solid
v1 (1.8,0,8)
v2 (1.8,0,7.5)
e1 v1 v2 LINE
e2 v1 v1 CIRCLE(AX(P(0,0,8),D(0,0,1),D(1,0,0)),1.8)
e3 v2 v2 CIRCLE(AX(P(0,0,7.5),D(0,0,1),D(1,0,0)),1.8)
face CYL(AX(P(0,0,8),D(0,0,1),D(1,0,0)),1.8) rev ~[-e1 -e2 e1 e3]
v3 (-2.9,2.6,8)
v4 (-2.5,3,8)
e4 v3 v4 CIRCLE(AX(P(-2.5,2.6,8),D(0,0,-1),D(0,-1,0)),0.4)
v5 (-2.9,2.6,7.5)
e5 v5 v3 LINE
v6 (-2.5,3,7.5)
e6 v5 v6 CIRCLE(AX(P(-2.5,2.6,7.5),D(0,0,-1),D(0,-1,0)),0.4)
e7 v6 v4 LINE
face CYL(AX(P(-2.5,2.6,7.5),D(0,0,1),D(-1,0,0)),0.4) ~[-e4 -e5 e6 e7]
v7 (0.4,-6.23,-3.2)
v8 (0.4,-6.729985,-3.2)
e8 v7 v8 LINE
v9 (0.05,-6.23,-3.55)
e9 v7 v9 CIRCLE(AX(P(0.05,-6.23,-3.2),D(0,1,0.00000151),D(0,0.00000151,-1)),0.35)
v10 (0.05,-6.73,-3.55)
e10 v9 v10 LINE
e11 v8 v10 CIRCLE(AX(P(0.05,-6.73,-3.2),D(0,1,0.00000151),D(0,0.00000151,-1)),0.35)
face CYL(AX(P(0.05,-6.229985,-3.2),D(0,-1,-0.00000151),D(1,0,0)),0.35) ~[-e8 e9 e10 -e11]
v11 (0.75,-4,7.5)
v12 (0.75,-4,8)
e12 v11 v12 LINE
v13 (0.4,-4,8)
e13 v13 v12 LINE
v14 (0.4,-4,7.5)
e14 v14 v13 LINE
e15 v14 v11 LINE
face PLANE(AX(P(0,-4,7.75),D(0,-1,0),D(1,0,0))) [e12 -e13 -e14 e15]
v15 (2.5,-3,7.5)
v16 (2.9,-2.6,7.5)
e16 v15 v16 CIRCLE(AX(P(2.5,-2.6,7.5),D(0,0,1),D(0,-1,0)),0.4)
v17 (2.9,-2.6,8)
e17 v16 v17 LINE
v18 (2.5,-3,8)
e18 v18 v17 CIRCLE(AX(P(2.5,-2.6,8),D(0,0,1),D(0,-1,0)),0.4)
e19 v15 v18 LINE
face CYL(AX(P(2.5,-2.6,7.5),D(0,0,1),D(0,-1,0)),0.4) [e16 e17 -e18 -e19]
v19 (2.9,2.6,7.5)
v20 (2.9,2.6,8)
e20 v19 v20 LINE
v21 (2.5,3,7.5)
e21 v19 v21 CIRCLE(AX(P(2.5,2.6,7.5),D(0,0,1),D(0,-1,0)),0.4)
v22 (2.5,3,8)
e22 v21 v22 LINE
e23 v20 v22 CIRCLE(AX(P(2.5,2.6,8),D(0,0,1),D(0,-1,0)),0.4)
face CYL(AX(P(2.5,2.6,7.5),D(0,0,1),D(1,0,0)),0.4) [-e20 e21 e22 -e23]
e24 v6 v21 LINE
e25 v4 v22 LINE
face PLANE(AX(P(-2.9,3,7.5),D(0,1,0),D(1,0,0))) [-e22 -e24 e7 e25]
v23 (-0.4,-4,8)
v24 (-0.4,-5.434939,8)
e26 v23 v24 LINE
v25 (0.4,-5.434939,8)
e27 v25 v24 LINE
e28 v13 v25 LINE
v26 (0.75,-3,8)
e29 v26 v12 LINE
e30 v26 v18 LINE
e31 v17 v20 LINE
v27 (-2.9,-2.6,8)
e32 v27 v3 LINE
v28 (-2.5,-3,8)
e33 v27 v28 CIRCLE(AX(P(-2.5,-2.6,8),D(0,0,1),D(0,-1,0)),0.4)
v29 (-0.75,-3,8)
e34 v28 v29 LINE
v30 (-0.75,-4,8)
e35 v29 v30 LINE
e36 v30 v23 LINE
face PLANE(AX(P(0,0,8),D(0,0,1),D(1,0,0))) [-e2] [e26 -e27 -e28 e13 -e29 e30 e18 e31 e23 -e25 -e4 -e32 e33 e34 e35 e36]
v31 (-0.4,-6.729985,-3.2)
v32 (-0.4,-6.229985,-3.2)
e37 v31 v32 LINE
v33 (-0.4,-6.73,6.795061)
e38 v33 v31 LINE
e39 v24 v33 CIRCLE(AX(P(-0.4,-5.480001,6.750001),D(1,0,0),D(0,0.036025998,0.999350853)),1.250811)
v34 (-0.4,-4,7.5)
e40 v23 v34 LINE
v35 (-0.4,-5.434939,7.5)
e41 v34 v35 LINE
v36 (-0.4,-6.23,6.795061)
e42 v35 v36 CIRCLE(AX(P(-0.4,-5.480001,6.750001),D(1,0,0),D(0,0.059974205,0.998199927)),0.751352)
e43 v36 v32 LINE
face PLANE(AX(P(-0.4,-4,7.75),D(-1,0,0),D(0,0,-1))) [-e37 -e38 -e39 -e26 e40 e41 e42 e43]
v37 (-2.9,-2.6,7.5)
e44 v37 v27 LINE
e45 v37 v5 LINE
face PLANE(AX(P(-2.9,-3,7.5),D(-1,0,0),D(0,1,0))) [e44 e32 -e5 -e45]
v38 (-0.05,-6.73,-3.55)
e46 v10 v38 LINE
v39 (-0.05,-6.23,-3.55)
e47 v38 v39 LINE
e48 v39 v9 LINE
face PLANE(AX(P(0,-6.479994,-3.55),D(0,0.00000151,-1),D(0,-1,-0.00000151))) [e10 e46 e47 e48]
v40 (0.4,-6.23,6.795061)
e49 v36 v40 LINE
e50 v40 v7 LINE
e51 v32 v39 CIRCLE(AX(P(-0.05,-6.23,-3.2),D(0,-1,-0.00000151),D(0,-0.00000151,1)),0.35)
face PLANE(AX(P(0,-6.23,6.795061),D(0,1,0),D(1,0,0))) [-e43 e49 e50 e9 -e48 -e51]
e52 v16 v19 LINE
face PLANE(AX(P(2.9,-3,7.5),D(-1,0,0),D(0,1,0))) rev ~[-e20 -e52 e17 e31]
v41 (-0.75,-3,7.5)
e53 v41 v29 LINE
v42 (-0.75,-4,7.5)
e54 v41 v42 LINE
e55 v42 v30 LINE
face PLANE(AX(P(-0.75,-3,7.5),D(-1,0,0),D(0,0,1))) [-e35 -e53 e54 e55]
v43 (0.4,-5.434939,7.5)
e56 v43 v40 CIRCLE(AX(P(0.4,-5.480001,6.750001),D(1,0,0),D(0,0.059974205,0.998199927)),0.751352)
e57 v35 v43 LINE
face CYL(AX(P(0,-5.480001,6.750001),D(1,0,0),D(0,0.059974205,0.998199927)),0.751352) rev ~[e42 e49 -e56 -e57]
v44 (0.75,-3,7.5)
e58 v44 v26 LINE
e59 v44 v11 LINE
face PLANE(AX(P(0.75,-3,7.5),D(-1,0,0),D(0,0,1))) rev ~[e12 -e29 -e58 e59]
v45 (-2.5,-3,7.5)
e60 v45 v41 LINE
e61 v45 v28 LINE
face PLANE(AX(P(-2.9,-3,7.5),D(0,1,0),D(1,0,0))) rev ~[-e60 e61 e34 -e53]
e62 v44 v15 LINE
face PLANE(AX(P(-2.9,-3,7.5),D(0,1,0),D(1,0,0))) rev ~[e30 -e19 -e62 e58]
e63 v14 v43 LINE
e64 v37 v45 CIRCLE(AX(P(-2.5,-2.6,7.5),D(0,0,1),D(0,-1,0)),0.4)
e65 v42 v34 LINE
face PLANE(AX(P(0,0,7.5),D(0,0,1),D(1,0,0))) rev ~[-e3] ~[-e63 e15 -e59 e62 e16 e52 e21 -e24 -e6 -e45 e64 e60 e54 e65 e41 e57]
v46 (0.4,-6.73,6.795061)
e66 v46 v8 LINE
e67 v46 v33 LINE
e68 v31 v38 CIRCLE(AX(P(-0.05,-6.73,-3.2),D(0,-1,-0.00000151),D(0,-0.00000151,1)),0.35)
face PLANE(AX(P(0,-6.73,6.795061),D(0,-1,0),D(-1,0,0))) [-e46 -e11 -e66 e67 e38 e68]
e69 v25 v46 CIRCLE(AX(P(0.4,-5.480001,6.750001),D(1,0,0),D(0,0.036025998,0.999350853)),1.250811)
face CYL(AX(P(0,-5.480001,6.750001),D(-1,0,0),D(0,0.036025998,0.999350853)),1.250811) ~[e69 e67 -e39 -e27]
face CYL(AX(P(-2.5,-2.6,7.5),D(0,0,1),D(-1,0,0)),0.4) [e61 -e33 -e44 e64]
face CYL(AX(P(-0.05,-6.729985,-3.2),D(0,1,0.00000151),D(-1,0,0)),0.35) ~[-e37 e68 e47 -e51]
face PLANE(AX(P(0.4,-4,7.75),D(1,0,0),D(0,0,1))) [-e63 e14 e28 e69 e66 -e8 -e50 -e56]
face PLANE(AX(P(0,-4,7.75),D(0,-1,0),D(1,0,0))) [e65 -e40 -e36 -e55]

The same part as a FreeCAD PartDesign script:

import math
import FreeCAD as App
import Part
import Sketcher

V = App.Vector


def edges_at(feature, points):
    """Names of the edges that pass closest to the given points."""
    edges = feature.Shape.Edges
    near = lambda p: min(range(len(edges)), key=lambda i: edges[i].distToShape(Part.Vertex(*p))[0])
    return sorted({f"Edge{near(p) + 1}" for p in points})

doc = App.newDocument("Part")
body = doc.addObject("PartDesign::Body", "Body")

# Sketch on XY plane
sketch1 = doc.addObject("Sketcher::SketchObject", "Sketch")
body.addObject(sketch1)
sketch1.AttachmentSupport = (doc.XY_Plane, [""])
sketch1.MapMode = "FlatFace"
sketch1.AttachmentOffset = App.Placement(V(0, 0, 9.5), App.Rotation())
sketch1.addGeometry(Part.LineSegment(V(-2.9, 3, 0), V(-2.9, -3, 0)), False)
sketch1.addGeometry(Part.LineSegment(V(-2.9, -3, 0), V(2.9, -3, 0)), False)
sketch1.addGeometry(Part.LineSegment(V(2.9, -3, 0), V(2.9, 3, 0)), False)
sketch1.addGeometry(Part.LineSegment(V(2.9, 3, 0), V(-2.9, 3, 0)), False)
sketch1.addConstraint(Sketcher.Constraint("Coincident", 0, 2, 1, 1))
sketch1.addConstraint(Sketcher.Constraint("Coincident", 1, 2, 2, 1))
sketch1.addConstraint(Sketcher.Constraint("Coincident", 2, 2, 3, 1))
sketch1.addConstraint(Sketcher.Constraint("Coincident", 3, 2, 0, 1))
sketch1.addConstraint(Sketcher.Constraint("Vertical", 0))
sketch1.addConstraint(Sketcher.Constraint("Horizontal", 1))
sketch1.addConstraint(Sketcher.Constraint("Vertical", 2))
sketch1.addConstraint(Sketcher.Constraint("Horizontal", 3))
sketch1.addConstraint(Sketcher.Constraint("Symmetric", 0, 2, 2, 2, -1, 1))
sketch1.addConstraint(Sketcher.Constraint("DistanceY", 0, 2, 0, 1, 6.0))
sketch1.addConstraint(Sketcher.Constraint("DistanceX", 1, 1, 1, 2, 5.8))
pad1 = doc.addObject("PartDesign::Pad", "Pad")
body.addObject(pad1)
pad1.Profile = sketch1
pad1.Length = 0.5
doc.recompute()

fillet = doc.addObject("PartDesign::Fillet", "Fillet")
body.addObject(fillet)
fillet.Base = (pad1, edges_at(pad1, [
    (2.9, -3, 9.75),
    (-2.9, -3, 9.75),
    (-2.9, 3, 9.75),
    (2.9, 3, 9.75),
]))
fillet.Radius = 0.4

# Sketch on XZ plane
sketch2 = doc.addObject("Sketcher::SketchObject", "Sketch001")
body.addObject(sketch2)
sketch2.AttachmentSupport = (doc.XZ_Plane, [""])
sketch2.MapMode = "FlatFace"
sketch2.AttachmentOffset = App.Placement(V(0, 0, 3), App.Rotation())
sketch2.addGeometry(Part.LineSegment(V(-0.75, 10, 0), V(-0.75, 9.5, 0)), False)
sketch2.addGeometry(Part.LineSegment(V(-0.75, 9.5, 0), V(0.75, 9.5, 0)), False)
sketch2.addGeometry(Part.LineSegment(V(0.75, 9.5, 0), V(0.75, 10, 0)), False)
sketch2.addGeometry(Part.LineSegment(V(0.75, 10, 0), V(-0.75, 10, 0)), False)
sketch2.addConstraint(Sketcher.Constraint("Coincident", 0, 2, 1, 1))
sketch2.addConstraint(Sketcher.Constraint("Coincident", 1, 2, 2, 1))
sketch2.addConstraint(Sketcher.Constraint("Coincident", 2, 2, 3, 1))
sketch2.addConstraint(Sketcher.Constraint("Coincident", 3, 2, 0, 1))
sketch2.addConstraint(Sketcher.Constraint("Vertical", 0))
sketch2.addConstraint(Sketcher.Constraint("Horizontal", 1))
sketch2.addConstraint(Sketcher.Constraint("Vertical", 2))
sketch2.addConstraint(Sketcher.Constraint("Horizontal", 3))
sketch2.addConstraint(Sketcher.Constraint("DistanceX", 1, 1, 1, 2, 1.5))
sketch2.addConstraint(Sketcher.Constraint("DistanceY", 0, 2, 0, 1, 0.5))
sketch2.addConstraint(Sketcher.Constraint("DistanceY", -1, 1, 2, 2, 10.0))
sketch2.addConstraint(Sketcher.Constraint("DistanceX", 0, 2, -1, 1, 0.75))
pad2 = doc.addObject("PartDesign::Pad", "Pad001")
body.addObject(pad2)
pad2.Profile = sketch2
pad2.Length = 1

# Sketch on XZ plane
sketch3 = doc.addObject("Sketcher::SketchObject", "Sketch002")
body.addObject(sketch3)
sketch3.AttachmentSupport = (doc.XZ_Plane, [""])
sketch3.MapMode = "FlatFace"
sketch3.AttachmentOffset = App.Placement(V(0, 0, 4), App.Rotation())
sketch3.addGeometry(Part.LineSegment(V(-0.4, 10, 0), V(-0.4, 9.5, 0)), False)
sketch3.addGeometry(Part.LineSegment(V(-0.4, 9.5, 0), V(0.4, 9.5, 0)), False)
sketch3.addGeometry(Part.LineSegment(V(0.4, 9.5, 0), V(0.4, 10, 0)), False)
sketch3.addGeometry(Part.LineSegment(V(0.4, 10, 0), V(-0.4, 10, 0)), False)
sketch3.addConstraint(Sketcher.Constraint("Coincident", 0, 2, 1, 1))
sketch3.addConstraint(Sketcher.Constraint("Coincident", 1, 2, 2, 1))
sketch3.addConstraint(Sketcher.Constraint("Coincident", 2, 2, 3, 1))
sketch3.addConstraint(Sketcher.Constraint("Coincident", 3, 2, 0, 1))
sketch3.addConstraint(Sketcher.Constraint("Vertical", 0))
sketch3.addConstraint(Sketcher.Constraint("Horizontal", 1))
sketch3.addConstraint(Sketcher.Constraint("Vertical", 2))
sketch3.addConstraint(Sketcher.Constraint("Horizontal", 3))
sketch3.addConstraint(Sketcher.Constraint("DistanceX", 1, 1, 1, 2, 0.8))
sketch3.addConstraint(Sketcher.Constraint("DistanceY", 0, 2, 0, 1, 0.5))
sketch3.addConstraint(Sketcher.Constraint("DistanceY", -1, 1, 2, 2, 10.0))
sketch3.addConstraint(Sketcher.Constraint("DistanceX", 0, 2, -1, 1, 0.4))

# Sketch on YZ plane
sketch4 = doc.addObject("Sketcher::SketchObject", "Sketch003")
body.addObject(sketch4)
sketch4.AttachmentSupport = (doc.YZ_Plane, [""])
sketch4.MapMode = "FlatFace"
sketch4.AttachmentOffset = App.Placement(V(0, 0, 0.75), App.Rotation())
sketch4.addGeometry(Part.LineSegment(V(-4, 9.75, 0), V(-5.434939, 9.75, 0)), False)
sketch4.addGeometry(Part.ArcOfCircle(Part.Circle(V(-5.480001, 8.750001, 0), V(0, 0, 1), 1.001014), math.radians(87.419897), math.radians(177.419983)), False)
sketch4.addGeometry(Part.LineSegment(V(-6.48, 8.795061, 0), V(-6.48, -1.55, 0)), False)
sketch4.addConstraint(Sketcher.Constraint("Coincident", 0, 2, 1, 1))
sketch4.addConstraint(Sketcher.Constraint("Coincident", 1, 2, 2, 1))
sketch4.addConstraint(Sketcher.Constraint("Horizontal", 0))
sketch4.addConstraint(Sketcher.Constraint("Vertical", 2))
sketch4.addConstraint(Sketcher.Constraint("DistanceX", 0, 1, -1, 1, 4.0))
sketch4.addConstraint(Sketcher.Constraint("DistanceY", 1, 3, 0, 1, 0.999999))
sketch4.addConstraint(Sketcher.Constraint("DistanceX", 1, 2, 1, 3, 0.999999))
sketch4.addConstraint(Sketcher.Constraint("DistanceY", 2, 2, 1, 3, 10.300001))
sketch4.addConstraint(Sketcher.Constraint("DistanceX", 1, 3, -1, 1, 5.480001))
sketch4.addConstraint(Sketcher.Constraint("DistanceY", -1, 1, 1, 3, 8.750001))
sketch4.addConstraint(Sketcher.Constraint("Radius", 1, 1.001014))
doc.recompute()

additivepipe = doc.addObject("PartDesign::AdditivePipe", "AdditivePipe")
body.addObject(additivepipe)
additivepipe.Profile = sketch3
additivepipe.Spine = (sketch4, ["Edge1", "Edge2", "Edge3"])
doc.recompute()

fillet2 = doc.addObject("PartDesign::Fillet", "Fillet001")
body.addObject(fillet2)
fillet2.Base = (additivepipe, edges_at(additivepipe, [(-0.4, -6.48, -1.55), (0.4, -6.48, -1.55)]))
fillet2.Radius = 0.35

# Sketch on XY plane
sketch5 = doc.addObject("Sketcher::SketchObject", "Sketch004")
body.addObject(sketch5)
sketch5.AttachmentSupport = (doc.XY_Plane, [""])
sketch5.MapMode = "FlatFace"
sketch5.AttachmentOffset = App.Placement(V(0, 0, 10), App.Rotation())
sketch5.addGeometry(Part.Circle(V(0, 0, 0), V(0, 0, 1), 1.8), False)
sketch5.addConstraint(Sketcher.Constraint("Coincident", 0, 3, -1, 1))
sketch5.addConstraint(Sketcher.Constraint("Diameter", 0, 3.6))
pocket1 = doc.addObject("PartDesign::Pocket", "Pocket")
body.addObject(pocket1)
pocket1.Profile = sketch5
pocket1.Length = 0.5
body2 = doc.addObject("PartDesign::Body", "Body001")
doc.recompute()

body.Placement = App.Placement(V(0, 0, -2), App.Rotation(V(0, 0, 1), 0))
boolean = doc.addObject("PartDesign::Boolean", "Boolean")
body2.addObject(boolean)
boolean.Type = "Fuse"
boolean.addObjects([body])

doc.recompute()
